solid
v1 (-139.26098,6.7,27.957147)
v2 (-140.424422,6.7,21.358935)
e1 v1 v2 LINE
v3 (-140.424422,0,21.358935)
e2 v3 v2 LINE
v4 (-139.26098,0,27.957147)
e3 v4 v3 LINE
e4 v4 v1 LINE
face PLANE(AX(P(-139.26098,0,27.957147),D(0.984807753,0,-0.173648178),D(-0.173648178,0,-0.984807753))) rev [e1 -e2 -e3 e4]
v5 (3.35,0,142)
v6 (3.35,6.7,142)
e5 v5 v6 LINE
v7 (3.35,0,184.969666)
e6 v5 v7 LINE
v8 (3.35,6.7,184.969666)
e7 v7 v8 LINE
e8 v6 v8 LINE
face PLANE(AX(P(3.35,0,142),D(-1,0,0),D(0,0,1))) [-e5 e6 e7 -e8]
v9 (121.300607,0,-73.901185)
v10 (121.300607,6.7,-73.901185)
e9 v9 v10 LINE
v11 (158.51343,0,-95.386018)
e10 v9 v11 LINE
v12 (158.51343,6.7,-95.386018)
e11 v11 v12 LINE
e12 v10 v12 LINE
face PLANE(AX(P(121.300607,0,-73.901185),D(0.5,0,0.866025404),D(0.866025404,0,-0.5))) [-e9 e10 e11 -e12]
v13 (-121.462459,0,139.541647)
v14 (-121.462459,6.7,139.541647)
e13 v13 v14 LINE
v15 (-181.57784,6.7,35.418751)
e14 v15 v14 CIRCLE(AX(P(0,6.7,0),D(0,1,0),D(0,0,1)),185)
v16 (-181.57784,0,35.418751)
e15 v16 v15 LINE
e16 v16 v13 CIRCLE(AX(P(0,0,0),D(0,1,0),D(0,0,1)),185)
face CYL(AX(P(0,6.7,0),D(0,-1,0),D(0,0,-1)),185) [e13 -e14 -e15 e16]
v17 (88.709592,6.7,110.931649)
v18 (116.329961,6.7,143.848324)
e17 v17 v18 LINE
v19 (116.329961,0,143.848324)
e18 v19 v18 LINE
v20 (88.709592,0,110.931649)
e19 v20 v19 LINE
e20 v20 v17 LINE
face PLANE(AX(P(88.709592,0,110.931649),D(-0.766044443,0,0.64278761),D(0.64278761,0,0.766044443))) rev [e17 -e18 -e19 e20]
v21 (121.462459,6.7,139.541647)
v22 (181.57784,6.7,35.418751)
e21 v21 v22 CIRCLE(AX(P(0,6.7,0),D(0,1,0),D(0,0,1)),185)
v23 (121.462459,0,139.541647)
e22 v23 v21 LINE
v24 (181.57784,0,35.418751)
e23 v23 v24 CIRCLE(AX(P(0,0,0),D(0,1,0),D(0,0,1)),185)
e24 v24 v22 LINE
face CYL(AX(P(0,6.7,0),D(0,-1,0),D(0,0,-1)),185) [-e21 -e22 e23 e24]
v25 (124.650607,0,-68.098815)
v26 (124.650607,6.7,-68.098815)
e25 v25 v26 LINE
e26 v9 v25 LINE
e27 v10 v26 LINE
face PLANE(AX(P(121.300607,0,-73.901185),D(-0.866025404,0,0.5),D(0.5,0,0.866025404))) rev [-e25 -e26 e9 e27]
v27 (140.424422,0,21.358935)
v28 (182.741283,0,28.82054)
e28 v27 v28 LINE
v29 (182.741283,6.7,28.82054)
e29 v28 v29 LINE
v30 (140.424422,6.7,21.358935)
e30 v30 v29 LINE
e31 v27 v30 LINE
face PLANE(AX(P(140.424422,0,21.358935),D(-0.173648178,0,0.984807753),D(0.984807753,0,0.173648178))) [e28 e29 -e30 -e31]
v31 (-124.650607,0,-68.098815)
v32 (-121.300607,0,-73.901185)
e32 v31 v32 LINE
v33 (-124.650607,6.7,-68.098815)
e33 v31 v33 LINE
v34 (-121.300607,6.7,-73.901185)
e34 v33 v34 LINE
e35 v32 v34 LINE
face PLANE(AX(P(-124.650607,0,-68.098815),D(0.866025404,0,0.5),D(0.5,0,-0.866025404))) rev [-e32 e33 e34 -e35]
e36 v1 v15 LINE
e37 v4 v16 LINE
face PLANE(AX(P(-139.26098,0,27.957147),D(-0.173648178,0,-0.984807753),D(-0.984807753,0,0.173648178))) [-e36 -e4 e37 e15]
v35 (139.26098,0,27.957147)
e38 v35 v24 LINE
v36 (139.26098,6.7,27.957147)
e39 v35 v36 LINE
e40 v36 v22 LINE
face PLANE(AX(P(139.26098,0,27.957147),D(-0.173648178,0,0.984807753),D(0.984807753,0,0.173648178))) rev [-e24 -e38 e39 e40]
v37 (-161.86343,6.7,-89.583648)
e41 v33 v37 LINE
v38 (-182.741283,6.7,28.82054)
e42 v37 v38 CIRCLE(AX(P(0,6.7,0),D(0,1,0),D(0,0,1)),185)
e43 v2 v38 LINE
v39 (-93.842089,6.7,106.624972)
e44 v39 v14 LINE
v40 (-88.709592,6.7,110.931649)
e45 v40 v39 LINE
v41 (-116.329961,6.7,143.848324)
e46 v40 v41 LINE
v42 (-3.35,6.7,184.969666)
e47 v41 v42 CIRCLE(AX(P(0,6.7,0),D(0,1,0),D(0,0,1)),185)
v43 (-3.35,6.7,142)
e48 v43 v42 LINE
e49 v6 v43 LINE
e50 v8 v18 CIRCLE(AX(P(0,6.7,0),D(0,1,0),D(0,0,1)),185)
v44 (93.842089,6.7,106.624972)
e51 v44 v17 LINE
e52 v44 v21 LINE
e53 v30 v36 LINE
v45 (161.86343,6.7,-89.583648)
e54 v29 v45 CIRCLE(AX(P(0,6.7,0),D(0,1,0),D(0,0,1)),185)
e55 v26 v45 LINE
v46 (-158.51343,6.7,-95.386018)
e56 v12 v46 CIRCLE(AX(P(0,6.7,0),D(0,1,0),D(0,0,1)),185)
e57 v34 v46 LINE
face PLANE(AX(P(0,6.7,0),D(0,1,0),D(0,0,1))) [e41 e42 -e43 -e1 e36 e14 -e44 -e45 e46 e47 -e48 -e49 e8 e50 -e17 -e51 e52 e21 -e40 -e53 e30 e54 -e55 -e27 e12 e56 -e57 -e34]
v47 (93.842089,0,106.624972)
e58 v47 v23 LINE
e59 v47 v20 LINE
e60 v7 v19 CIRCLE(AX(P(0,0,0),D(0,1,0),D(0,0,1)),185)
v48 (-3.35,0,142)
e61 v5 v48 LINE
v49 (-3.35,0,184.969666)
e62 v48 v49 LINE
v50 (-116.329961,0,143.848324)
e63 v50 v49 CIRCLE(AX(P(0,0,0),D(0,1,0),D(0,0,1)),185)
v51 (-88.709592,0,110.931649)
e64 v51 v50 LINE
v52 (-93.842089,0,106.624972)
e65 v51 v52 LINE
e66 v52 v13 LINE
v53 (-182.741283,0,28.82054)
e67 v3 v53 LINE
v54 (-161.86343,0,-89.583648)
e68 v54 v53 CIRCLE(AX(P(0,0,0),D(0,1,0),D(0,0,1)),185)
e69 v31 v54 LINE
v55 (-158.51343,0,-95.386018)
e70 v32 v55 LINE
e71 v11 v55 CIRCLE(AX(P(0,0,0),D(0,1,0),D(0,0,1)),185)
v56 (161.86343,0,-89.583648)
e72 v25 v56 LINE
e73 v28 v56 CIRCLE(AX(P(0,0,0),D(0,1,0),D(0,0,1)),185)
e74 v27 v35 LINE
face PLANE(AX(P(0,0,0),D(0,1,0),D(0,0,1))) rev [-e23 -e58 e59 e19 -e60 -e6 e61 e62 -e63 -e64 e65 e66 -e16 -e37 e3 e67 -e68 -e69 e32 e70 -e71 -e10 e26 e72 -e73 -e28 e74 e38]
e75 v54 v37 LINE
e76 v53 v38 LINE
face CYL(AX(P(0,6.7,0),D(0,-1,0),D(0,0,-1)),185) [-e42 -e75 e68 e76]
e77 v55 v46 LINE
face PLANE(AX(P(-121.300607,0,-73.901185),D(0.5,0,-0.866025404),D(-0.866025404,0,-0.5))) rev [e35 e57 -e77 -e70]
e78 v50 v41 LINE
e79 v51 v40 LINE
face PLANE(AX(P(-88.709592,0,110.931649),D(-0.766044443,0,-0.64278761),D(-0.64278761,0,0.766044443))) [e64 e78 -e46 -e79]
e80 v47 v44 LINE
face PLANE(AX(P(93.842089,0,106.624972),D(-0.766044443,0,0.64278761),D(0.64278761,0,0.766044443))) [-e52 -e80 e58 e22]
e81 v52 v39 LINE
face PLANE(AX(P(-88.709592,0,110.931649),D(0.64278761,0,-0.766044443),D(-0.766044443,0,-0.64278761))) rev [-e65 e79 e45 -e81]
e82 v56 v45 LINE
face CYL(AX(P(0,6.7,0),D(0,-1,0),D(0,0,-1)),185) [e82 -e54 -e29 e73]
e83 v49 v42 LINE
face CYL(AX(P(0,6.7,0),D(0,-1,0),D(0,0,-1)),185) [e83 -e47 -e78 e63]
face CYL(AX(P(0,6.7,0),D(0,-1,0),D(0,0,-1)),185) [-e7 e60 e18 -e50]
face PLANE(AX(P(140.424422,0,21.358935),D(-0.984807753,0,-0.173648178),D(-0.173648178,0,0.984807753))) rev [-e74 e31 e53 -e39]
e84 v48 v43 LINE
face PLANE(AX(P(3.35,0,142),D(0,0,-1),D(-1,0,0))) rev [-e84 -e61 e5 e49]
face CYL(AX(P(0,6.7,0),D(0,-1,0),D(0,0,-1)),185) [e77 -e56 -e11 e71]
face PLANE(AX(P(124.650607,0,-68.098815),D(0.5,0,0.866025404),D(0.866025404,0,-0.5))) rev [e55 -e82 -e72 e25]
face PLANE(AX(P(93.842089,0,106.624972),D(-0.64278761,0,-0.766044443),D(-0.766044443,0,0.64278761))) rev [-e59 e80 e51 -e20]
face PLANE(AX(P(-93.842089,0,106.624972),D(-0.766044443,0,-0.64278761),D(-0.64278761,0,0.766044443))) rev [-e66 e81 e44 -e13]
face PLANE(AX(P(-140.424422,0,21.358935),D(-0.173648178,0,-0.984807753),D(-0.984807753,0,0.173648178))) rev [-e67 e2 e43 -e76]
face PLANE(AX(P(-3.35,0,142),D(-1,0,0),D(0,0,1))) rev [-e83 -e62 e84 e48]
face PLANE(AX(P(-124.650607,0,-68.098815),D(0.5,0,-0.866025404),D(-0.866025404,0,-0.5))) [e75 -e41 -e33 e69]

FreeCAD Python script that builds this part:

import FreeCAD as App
import Part
import Sketcher

V = App.Vector
Q = App.Units.Quantity

doc = App.newDocument("Part")
params = doc.addObject("Spreadsheet::Sheet", "Params")
for row, (alias, value) in enumerate([
    ("sketch1_diameter", "370 mm"),
    ("pad1_length", "6.7 mm"),
    ("sketch2_height", "44 mm"),
    ("sketch2_length", "44 mm"),
    ("sketch2_width", "6.7 mm"),
    ("sketch2_length2", "6.7 mm"),
    ("pocket1_length", "6.7 mm"),
], start=1):
    params.set(f"A{row}", alias)
    params.set(f"B{row}", "=" + value)
    params.setAlias(f"B{row}", alias)

body = doc.addObject("PartDesign::Body", "Body")

sketch1 = body.newObject("Sketcher::SketchObject", "Sketch")
sketch1.AttachmentSupport = (doc.getObject("XZ_Plane"), [""])
sketch1.MapMode = "FlatFace"
sketch1.addGeometry(Part.Circle(V(0, 0, 0), V(0, 0, 1), 185), False)
sketch1.addConstraint([
    Sketcher.Constraint("Coincident", 0, 3, -1, 1),
    Sketcher.Constraint("Diameter", 0, Q("370 mm")),
])
sketch1.setExpression("Constraints[1]", "Params.sketch1_diameter")
pad1 = body.newObject("PartDesign::Pad", "Pad")
pad1.Profile = sketch1
pad1.setExpression("Length", "Params.pad1_length")
pad1.Reversed = True

sketch2 = body.newObject("Sketcher::SketchObject", "Sketch001")
sketch2.AttachmentSupport = (doc.getObject("XZ_Plane"), [""])
sketch2.MapMode = "FlatFace"
sketch2.AttachmentOffset = App.Placement(V(0, 0, -6.7), App.Rotation())
sketch2.addGeometry([
    Part.LineSegment(V(159, -96, 0), V(121, -74, 0)),
    Part.LineSegment(V(121, -74, 0), V(125, -68, 0)),
    Part.LineSegment(V(125, -68, 0), V(163, -90, 0)),
    Part.LineSegment(V(163, -90, 0), V(159, -96, 0)),
    Part.LineSegment(V(122, 140, 0), V(94, 107, 0)),
    Part.LineSegment(V(94, 107, 0), V(89, 111, 0)),
    Part.LineSegment(V(89, 111, 0), V(117, 145, 0)),
    Part.LineSegment(V(117, 145, 0), V(122, 140, 0)),
    Part.LineSegment(V(184, 29, 0), V(140, 21, 0)),
    Part.LineSegment(V(140, 21, 0), V(139, 28, 0)),
    Part.LineSegment(V(139, 28, 0), V(183, 36, 0)),
    Part.LineSegment(V(183, 36, 0), V(184, 29, 0)),
    Part.LineSegment(V(-3, 142, 0), V(-3, 186, 0)),
    Part.LineSegment(V(-3, 186, 0), V(3, 186, 0)),
    Part.LineSegment(V(3, 186, 0), V(3, 142, 0)),
    Part.LineSegment(V(3, 142, 0), V(-3, 142, 0)),
    Part.LineSegment(V(-117, 145, 0), V(-89, 111, 0)),
    Part.LineSegment(V(-89, 111, 0), V(-94, 107, 0)),
    Part.LineSegment(V(-94, 107, 0), V(-122, 140, 0)),
    Part.LineSegment(V(-122, 140, 0), V(-117, 145, 0)),
    Part.LineSegment(V(-183, 36, 0), V(-139, 28, 0)),
    Part.LineSegment(V(-139, 28, 0), V(-140, 21, 0)),
    Part.LineSegment(V(-140, 21, 0), V(-184, 29, 0)),
    Part.LineSegment(V(-184, 29, 0), V(-183, 36, 0)),
    Part.LineSegment(V(-163, -90, 0), V(-125, -68, 0)),
    Part.LineSegment(V(-125, -68, 0), V(-121, -74, 0)),
    Part.LineSegment(V(-121, -74, 0), V(-159, -96, 0)),
    Part.LineSegment(V(-159, -96, 0), V(-163, -90, 0)),
], False)
sketch2.addConstraint([
    Sketcher.Constraint("Coincident", 0, 2, 1, 1),
    Sketcher.Constraint("Coincident", 1, 2, 2, 1),
    Sketcher.Constraint("Coincident", 2, 2, 3, 1),
    Sketcher.Constraint("Coincident", 3, 2, 0, 1),
    Sketcher.Constraint("Coincident", 4, 2, 5, 1),
    Sketcher.Constraint("Coincident", 5, 2, 6, 1),
    Sketcher.Constraint("Coincident", 6, 2, 7, 1),
    Sketcher.Constraint("Coincident", 7, 2, 4, 1),
    Sketcher.Constraint("Coincident", 8, 2, 9, 1),
    Sketcher.Constraint("Coincident", 9, 2, 10, 1),
    Sketcher.Constraint("Coincident", 10, 2, 11, 1),
    Sketcher.Constraint("Coincident", 11, 2, 8, 1),
    Sketcher.Constraint("Coincident", 12, 2, 13, 1),
    Sketcher.Constraint("Coincident", 13, 2, 14, 1),
    Sketcher.Constraint("Coincident", 14, 2, 15, 1),
    Sketcher.Constraint("Coincident", 15, 2, 12, 1),
    Sketcher.Constraint("Coincident", 16, 2, 17, 1),
    Sketcher.Constraint("Coincident", 17, 2, 18, 1),
    Sketcher.Constraint("Coincident", 18, 2, 19, 1),
    Sketcher.Constraint("Coincident", 19, 2, 16, 1),
    Sketcher.Constraint("Coincident", 20, 2, 21, 1),
    Sketcher.Constraint("Coincident", 21, 2, 22, 1),
    Sketcher.Constraint("Coincident", 22, 2, 23, 1),
    Sketcher.Constraint("Coincident", 23, 2, 20, 1),
    Sketcher.Constraint("Coincident", 24, 2, 25, 1),
    Sketcher.Constraint("Coincident", 25, 2, 26, 1),
    Sketcher.Constraint("Coincident", 26, 2, 27, 1),
    Sketcher.Constraint("Coincident", 27, 2, 24, 1),
    Sketcher.Constraint("Vertical", 12),
    Sketcher.Constraint("Horizontal", 13),
    Sketcher.Constraint("Vertical", 14),
    Sketcher.Constraint("Horizontal", 15),
    Sketcher.Constraint("Symmetric", 5, 2, 16, 2, -2),
    Sketcher.Constraint("Symmetric", 4, 2, 17, 2, -2),
    Sketcher.Constraint("Symmetric", 7, 2, 18, 2, -2),
    Sketcher.Constraint("Symmetric", 6, 2, 19, 2, -2),
    Sketcher.Constraint("Symmetric", 9, 2, 20, 2, -2),
    Sketcher.Constraint("Symmetric", 8, 2, 21, 2, -2),
    Sketcher.Constraint("Symmetric", 11, 2, 22, 2, -2),
    Sketcher.Constraint("Symmetric", 10, 2, 23, 2, -2),
    Sketcher.Constraint("Symmetric", 1, 2, 24, 2, -2),
    Sketcher.Constraint("Symmetric", 0, 2, 25, 2, -2),
    Sketcher.Constraint("Symmetric", 3, 2, 26, 2, -2),
    Sketcher.Constraint("Symmetric", 2, 2, 27, 2, -2),
    Sketcher.Constraint("Perpendicular", 0, 1),
    Sketcher.Constraint("Perpendicular", 1, 2),
    Sketcher.Constraint("Perpendicular", 2, 3),
    Sketcher.Constraint("Perpendicular", 4, 5),
    Sketcher.Constraint("Perpendicular", 5, 6),
    Sketcher.Constraint("Perpendicular", 6, 7),
    Sketcher.Constraint("Perpendicular", 8, 9),
    Sketcher.Constraint("Perpendicular", 9, 10),
    Sketcher.Constraint("Perpendicular", 10, 11),
    Sketcher.Constraint("Equal", 2, 4),
    Sketcher.Constraint("Equal", 3, 5),
    Sketcher.Constraint("Equal", 6, 8),
    Sketcher.Constraint("Equal", 7, 9),
    Sketcher.Constraint("DistanceY", 12, 1, 12, 2, Q("44 mm")),
    Sketcher.Constraint("Angle", 0, Q("150 deg")),
    Sketcher.Constraint("Angle", 4, Q("-130 deg")),
    Sketcher.Constraint("Angle", 8, Q("-170 deg")),
    Sketcher.Constraint("Distance", 0, Q("44 mm")),
    Sketcher.Constraint("DistanceX", 13, 1, 13, 2, Q("6.7 mm")),
    Sketcher.Constraint("DistanceY", -1, 1, 12, 2, Q("186 mm")),
    Sketcher.Constraint("Distance", 1, Q("6.7 mm")),
    Sketcher.Constraint("DistanceX", 12, 2, -1, 1, Q("3.35 mm")),
    Sketcher.Constraint("DistanceX", -1, 1, 4, 2, Q("93.842089 mm")),
    Sketcher.Constraint("DistanceY", -1, 1, 5, 2, Q("110.931649 mm")),
    Sketcher.Constraint("DistanceX", -1, 1, 9, 2, Q("139.26098 mm")),
    Sketcher.Constraint("DistanceX", 6, 2, 1, 2, Q("7.658361 mm")),
    Sketcher.Constraint("DistanceY", 1, 2, 6, 2, Q("212.73642 mm")),
    Sketcher.Constraint("DistanceY", 1, 2, 8, 2, Q("89.45775 mm")),
])
sketch2.setExpression("Constraints[57]", "Params.sketch2_height")
sketch2.setExpression("Constraints[61]", "Params.sketch2_length")
sketch2.setExpression("Constraints[62]", "Params.sketch2_width")
sketch2.setExpression("Constraints[64]", "Params.sketch2_length2")
pocket1 = body.newObject("PartDesign::Pocket", "Pocket")
pocket1.Profile = sketch2
pocket1.setExpression("Length", "Params.pocket1_length")
pocket1.Reversed = True

doc.recompute()
